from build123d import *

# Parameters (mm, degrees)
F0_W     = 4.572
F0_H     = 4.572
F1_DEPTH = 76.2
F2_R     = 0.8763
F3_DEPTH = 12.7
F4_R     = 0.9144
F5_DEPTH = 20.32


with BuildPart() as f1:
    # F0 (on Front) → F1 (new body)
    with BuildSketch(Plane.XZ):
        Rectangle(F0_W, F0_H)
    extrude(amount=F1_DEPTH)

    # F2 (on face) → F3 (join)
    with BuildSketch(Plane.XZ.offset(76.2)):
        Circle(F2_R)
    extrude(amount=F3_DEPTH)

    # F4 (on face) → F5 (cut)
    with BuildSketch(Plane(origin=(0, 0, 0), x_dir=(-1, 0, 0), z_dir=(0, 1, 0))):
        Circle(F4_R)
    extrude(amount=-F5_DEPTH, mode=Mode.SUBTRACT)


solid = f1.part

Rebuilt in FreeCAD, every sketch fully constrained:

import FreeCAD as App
import Part
import Sketcher
from FreeCAD import Vector
Q = App.Units.Quantity

doc = App.newDocument("Part")
body = doc.addObject("PartDesign::Body", "Body")

# Sketch on XZ plane
sketch1 = body.newObject("Sketcher::SketchObject", "Sketch")
sketch1.AttachmentSupport = (doc.getObject("XZ_Plane"), [""])
sketch1.MapMode = "FlatFace"
sketch1.addGeometry(Part.LineSegment(Vector(-2.3, 2.3, 0), Vector(-2.3, -2.3, 0)), False)
sketch1.addGeometry(Part.LineSegment(Vector(-2.3, -2.3, 0), Vector(2.3, -2.3, 0)), False)
sketch1.addGeometry(Part.LineSegment(Vector(2.3, -2.3, 0), Vector(2.3, 2.3, 0)), False)
sketch1.addGeometry(Part.LineSegment(Vector(2.3, 2.3, 0), Vector(-2.3, 2.3, 0)), False)
sketch1.addConstraint(Sketcher.Constraint("Coincident", 0, 2, 1, 1))
sketch1.addConstraint(Sketcher.Constraint("Coincident", 1, 2, 2, 1))
sketch1.addConstraint(Sketcher.Constraint("Coincident", 2, 2, 3, 1))
sketch1.addConstraint(Sketcher.Constraint("Coincident", 3, 2, 0, 1))
sketch1.addConstraint(Sketcher.Constraint("Vertical", 0))
sketch1.addConstraint(Sketcher.Constraint("Horizontal", 1))
sketch1.addConstraint(Sketcher.Constraint("Vertical", 2))
sketch1.addConstraint(Sketcher.Constraint("Horizontal", 3))
sketch1.addConstraint(Sketcher.Constraint("Symmetric", 0, 2, 2, 2, -1, 1))
sketch1.addConstraint(Sketcher.Constraint("Equal", 3, 0))
sketch1.addConstraint(Sketcher.Constraint("DistanceX", 1, 1, 1, 2, Q("0.18 in")))
pad1 = body.newObject("PartDesign::Pad", "Pad")
pad1.Profile = sketch1
pad1.Length = Q("3 in")

# Sketch on XZ plane
sketch2 = body.newObject("Sketcher::SketchObject", "Sketch001")
sketch2.AttachmentSupport = (doc.getObject("XZ_Plane"), [""])
sketch2.MapMode = "FlatFace"
sketch2.AttachmentOffset = App.Placement(Vector(0, 0, 3 * 25.4), App.Rotation())
sketch2.addGeometry(Part.Circle(Vector(0, 0, 0), Vector(0, 0, 1), 0.9), False)
sketch2.addConstraint(Sketcher.Constraint("Coincident", 0, 3, -1, 1))
sketch2.addConstraint(Sketcher.Constraint("Diameter", 0, Q("0.069 in")))
pad2 = body.newObject("PartDesign::Pad", "Pad001")
pad2.Profile = sketch2
pad2.Length = Q("0.5 in")

# Sketch on XZ plane
sketch3 = body.newObject("Sketcher::SketchObject", "Sketch002")
sketch3.AttachmentSupport = (doc.getObject("XZ_Plane"), [""])
sketch3.MapMode = "FlatFace"
sketch3.addGeometry(Part.Circle(Vector(0, 0, 0), Vector(0, 0, 1), 0.9), False)
sketch3.addConstraint(Sketcher.Constraint("Coincident", 0, 3, -1, 1))
sketch3.addConstraint(Sketcher.Constraint("Diameter", 0, Q("0.072 in")))
pocket1 = body.newObject("PartDesign::Pocket", "Pocket")
pocket1.Profile = sketch3
pocket1.Length = Q("0.8 in")
pocket1.Reversed = True

doc.recompute()
